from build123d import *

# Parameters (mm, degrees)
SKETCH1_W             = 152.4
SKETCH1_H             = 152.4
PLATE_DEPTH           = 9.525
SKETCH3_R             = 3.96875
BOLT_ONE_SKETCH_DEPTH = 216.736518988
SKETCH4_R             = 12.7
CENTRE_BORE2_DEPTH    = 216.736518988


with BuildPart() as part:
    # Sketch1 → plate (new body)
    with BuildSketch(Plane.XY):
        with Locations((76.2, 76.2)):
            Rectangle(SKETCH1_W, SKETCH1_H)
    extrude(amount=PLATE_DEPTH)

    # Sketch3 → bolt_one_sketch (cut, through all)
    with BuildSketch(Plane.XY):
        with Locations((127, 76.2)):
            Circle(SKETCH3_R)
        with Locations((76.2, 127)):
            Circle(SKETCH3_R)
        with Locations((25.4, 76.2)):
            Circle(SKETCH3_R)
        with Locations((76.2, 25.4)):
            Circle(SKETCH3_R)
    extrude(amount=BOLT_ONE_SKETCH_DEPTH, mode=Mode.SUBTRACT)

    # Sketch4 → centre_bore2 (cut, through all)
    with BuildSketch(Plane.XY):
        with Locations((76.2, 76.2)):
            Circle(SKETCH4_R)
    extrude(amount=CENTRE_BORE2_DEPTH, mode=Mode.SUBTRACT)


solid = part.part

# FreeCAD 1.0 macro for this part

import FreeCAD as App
import Part
import Sketcher

V = App.Vector
Q = App.Units.Quantity


def add_polygon(sketch, points):
    """Adds a closed chain of lines whose ends are joined by coincident constraints."""
    first, n = sketch.GeometryCount, len(points)
    for a, b in zip(points, points[1:] + points[:1]):
        sketch.addGeometry(Part.LineSegment(App.Vector(*a, 0), App.Vector(*b, 0)), False)
    for i in range(n):
        sketch.addConstraint(Sketcher.Constraint("Coincident", first + i, 2, first + (i + 1) % n, 1))

doc = App.newDocument("Part")
body = doc.addObject("PartDesign::Body", "Body")

sketch1 = body.newObject("Sketcher::SketchObject", "Sketch")
sketch1.AttachmentSupport = (doc.getObject("XY_Plane"), [""])
sketch1.MapMode = "FlatFace"
add_polygon(sketch1, [(0, 152), (0, 0), (152, 0), (152, 152)])
sketch1.addConstraint(Sketcher.Constraint("Vertical", 0))
sketch1.addConstraint(Sketcher.Constraint("Horizontal", 1))
sketch1.addConstraint(Sketcher.Constraint("Vertical", 2))
sketch1.addConstraint(Sketcher.Constraint("Horizontal", 3))
sketch1.addConstraint(Sketcher.Constraint("Coincident", 0, 2, -1, 1))
sketch1.addConstraint(Sketcher.Constraint("Equal", 3, 0))
sketch1.addConstraint(Sketcher.Constraint("DistanceX", 1, 1, 1, 2, Q("6 in")))
pad1 = body.newObject("PartDesign::Pad", "Pad")
pad1.Profile = sketch1
pad1.Length = Q("0.375 in")

sketch2 = body.newObject("Sketcher::SketchObject", "Sketch001")
sketch2.AttachmentSupport = (doc.getObject("XY_Plane"), [""])
sketch2.MapMode = "FlatFace"
sketch2.addGeometry(Part.Circle(V(127, 76.2, 0), V(0, 0, 1), 4), False)
sketch2.addGeometry(Part.Circle(V(76.2, 127, 0), V(0, 0, 1), 4), False)
sketch2.addGeometry(Part.Circle(V(25.4, 76.2, 0), V(0, 0, 1), 4), False)
sketch2.addGeometry(Part.Circle(V(76.2, 25.4, 0), V(0, 0, 1), 4), False)
sketch2.addConstraint(Sketcher.Constraint("Equal", 0, 1))
sketch2.addConstraint(Sketcher.Constraint("Equal", 1, 2))
sketch2.addConstraint(Sketcher.Constraint("Equal", 2, 3))
sketch2.addConstraint(Sketcher.Constraint("Horizontal", 0, 3, 2, 3))
sketch2.addConstraint(Sketcher.Constraint("Vertical", 1, 3, 3, 3))
sketch2.addConstraint(Sketcher.Constraint("Diameter", 0, Q("0.3125 in")))
sketch2.addConstraint(Sketcher.Constraint("DistanceX", -1, 1, 0, 3, Q("5 in")))
sketch2.addConstraint(Sketcher.Constraint("DistanceY", -1, 1, 0, 3, Q("3 in")))
sketch2.addConstraint(Sketcher.Constraint("DistanceX", -1, 1, 1, 3, Q("3 in")))
sketch2.addConstraint(Sketcher.Constraint("DistanceY", -1, 1, 1, 3, Q("5 in")))
sketch2.addConstraint(Sketcher.Constraint("DistanceX", -1, 1, 2, 3, Q("1 in")))
sketch2.addConstraint(Sketcher.Constraint("DistanceY", -1, 1, 3, 3, Q("1 in")))
pocket1 = body.newObject("PartDesign::Pocket", "Pocket")
pocket1.Profile = sketch2
pocket1.Type = "ThroughAll"
pocket1.Reversed = True

sketch3 = body.newObject("Sketcher::SketchObject", "Sketch002")
sketch3.AttachmentSupport = (doc.getObject("XY_Plane"), [""])
sketch3.MapMode = "FlatFace"
sketch3.addGeometry(Part.Circle(V(76, 76, 0), V(0, 0, 1), 13), False)
sketch3.addConstraint(Sketcher.Constraint("Diameter", 0, Q("1 in")))
sketch3.addConstraint(Sketcher.Constraint("DistanceX", -1, 1, 0, 3, Q("3 in")))
sketch3.addConstraint(Sketcher.Constraint("DistanceY", -1, 1, 0, 3, Q("3 in")))
pocket2 = body.newObject("PartDesign::Pocket", "Pocket001")
pocket2.Profile = sketch3
pocket2.Type = "ThroughAll"
pocket2.Reversed = True

doc.recompute()
